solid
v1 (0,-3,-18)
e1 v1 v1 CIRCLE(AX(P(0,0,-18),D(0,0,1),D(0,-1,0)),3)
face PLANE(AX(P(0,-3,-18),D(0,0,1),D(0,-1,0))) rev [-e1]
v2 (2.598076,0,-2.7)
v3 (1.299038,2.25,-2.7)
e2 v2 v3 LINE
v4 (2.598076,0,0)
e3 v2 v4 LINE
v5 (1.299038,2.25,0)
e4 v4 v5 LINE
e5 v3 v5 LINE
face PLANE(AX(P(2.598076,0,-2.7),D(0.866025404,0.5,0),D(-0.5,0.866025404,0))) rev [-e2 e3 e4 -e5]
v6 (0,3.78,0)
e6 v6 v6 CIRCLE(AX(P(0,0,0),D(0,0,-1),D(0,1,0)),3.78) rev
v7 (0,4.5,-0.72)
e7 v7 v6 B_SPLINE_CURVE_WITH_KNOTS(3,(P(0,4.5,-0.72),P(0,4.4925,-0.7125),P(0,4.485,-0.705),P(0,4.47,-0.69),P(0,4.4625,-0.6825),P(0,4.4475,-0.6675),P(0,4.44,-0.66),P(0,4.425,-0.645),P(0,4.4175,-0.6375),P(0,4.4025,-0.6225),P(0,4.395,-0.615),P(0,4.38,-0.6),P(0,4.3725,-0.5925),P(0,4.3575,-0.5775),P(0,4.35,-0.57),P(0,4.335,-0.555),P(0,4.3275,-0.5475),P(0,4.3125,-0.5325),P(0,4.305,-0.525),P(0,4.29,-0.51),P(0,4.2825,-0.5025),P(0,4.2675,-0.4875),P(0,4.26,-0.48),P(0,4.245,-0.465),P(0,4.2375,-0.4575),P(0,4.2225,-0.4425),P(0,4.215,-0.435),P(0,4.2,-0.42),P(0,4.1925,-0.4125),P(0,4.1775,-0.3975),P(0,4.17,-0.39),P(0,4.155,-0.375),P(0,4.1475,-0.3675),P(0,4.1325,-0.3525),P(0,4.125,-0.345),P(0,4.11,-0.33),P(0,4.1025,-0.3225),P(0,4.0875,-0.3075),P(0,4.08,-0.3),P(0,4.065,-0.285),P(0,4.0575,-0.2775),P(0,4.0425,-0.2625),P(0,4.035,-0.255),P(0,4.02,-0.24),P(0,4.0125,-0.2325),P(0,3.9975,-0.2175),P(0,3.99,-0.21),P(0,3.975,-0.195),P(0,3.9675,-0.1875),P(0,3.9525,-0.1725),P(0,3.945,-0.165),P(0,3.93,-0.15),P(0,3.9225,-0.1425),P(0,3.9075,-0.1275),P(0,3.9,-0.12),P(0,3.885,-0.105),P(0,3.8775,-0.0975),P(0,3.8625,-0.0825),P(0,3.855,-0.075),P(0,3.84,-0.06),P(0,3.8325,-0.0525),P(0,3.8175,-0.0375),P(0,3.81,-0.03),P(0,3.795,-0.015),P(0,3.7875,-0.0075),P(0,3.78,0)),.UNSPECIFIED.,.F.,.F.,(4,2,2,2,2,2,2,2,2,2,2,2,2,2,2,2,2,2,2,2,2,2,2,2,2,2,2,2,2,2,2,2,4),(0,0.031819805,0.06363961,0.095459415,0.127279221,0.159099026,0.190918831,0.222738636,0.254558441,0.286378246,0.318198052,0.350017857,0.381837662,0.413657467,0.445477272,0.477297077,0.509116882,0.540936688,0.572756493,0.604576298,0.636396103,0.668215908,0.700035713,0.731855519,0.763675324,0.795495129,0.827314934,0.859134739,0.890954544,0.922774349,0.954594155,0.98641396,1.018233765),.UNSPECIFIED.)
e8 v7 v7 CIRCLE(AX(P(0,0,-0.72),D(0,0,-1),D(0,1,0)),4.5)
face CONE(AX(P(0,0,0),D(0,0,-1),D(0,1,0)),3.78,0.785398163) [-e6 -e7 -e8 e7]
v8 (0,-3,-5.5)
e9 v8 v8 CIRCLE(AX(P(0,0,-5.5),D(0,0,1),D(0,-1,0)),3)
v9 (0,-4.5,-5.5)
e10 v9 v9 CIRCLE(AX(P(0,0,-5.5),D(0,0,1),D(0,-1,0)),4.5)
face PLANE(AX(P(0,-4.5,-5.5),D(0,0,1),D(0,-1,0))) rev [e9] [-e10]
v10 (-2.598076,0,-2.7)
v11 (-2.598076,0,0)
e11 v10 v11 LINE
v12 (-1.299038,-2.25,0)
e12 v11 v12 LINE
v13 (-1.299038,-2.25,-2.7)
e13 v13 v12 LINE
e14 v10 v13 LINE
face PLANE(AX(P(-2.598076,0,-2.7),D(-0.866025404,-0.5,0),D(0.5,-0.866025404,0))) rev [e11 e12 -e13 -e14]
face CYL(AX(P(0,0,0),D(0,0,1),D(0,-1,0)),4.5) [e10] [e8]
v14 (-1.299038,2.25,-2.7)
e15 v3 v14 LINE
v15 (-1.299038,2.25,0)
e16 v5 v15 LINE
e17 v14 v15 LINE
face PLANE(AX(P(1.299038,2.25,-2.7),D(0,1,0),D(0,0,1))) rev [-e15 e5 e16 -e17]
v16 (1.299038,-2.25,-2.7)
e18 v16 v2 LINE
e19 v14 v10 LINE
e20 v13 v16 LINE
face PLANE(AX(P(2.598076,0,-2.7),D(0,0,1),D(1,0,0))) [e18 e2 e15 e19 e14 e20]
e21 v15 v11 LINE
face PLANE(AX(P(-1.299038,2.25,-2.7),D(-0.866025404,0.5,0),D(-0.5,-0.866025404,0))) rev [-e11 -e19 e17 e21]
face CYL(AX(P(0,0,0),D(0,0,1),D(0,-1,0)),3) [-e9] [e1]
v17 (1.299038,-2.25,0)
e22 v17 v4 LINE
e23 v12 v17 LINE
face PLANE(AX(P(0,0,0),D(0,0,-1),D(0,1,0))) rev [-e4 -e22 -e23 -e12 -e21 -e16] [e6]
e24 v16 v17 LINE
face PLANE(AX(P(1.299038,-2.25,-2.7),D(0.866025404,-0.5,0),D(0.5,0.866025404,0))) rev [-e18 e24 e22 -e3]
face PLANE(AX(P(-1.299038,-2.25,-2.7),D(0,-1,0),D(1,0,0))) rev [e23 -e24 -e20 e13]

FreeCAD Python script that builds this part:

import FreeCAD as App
import Part
import Sketcher
Q = App.Units.Quantity


def edges_at(feature, points):
    """Names of the edges that pass closest to the given points."""
    edges = feature.Shape.Edges
    near = lambda p: min(range(len(edges)), key=lambda i: edges[i].distToShape(Part.Vertex(*p))[0])
    return sorted({f"Edge{near(p) + 1}" for p in points})

doc = App.newDocument("Part")
body = doc.addObject("PartDesign::Body", "Body")

# Sketch on YZ plane
sketch1 = body.newObject("Sketcher::SketchObject", "Sketch")
sketch1.AttachmentSupport = (doc.getObject("YZ_Plane"), [""])
sketch1.MapMode = "FlatFace"
sketch1.addGeometry([
    Part.LineSegment(App.Vector(4.5, 0, 0), App.Vector(0, 0, 0)),  # 0
    Part.LineSegment(App.Vector(0, 0, 0), App.Vector(0, -18, 0)),  # 1
    Part.LineSegment(App.Vector(0, -18, 0), App.Vector(3, -18, 0)),  # 2
    Part.LineSegment(App.Vector(3, -18, 0), App.Vector(3, -5.5, 0)),  # 3
    Part.LineSegment(App.Vector(3, -5.5, 0), App.Vector(4.5, -5.5, 0)),  # 4
    Part.LineSegment(App.Vector(4.5, -5.5, 0), App.Vector(4.5, 0, 0)),  # 5
], False)
sketch1.addConstraint([
    Sketcher.Constraint("Coincident", 0, 2, 1, 1),
    Sketcher.Constraint("Coincident", 1, 2, 2, 1),
    Sketcher.Constraint("Coincident", 2, 2, 3, 1),
    Sketcher.Constraint("Coincident", 3, 2, 4, 1),
    Sketcher.Constraint("Coincident", 4, 2, 5, 1),
    Sketcher.Constraint("Coincident", 5, 2, 0, 1),
    Sketcher.Constraint("Horizontal", 0),
    Sketcher.Constraint("Vertical", 1),
    Sketcher.Constraint("Horizontal", 2),
    Sketcher.Constraint("Vertical", 3),
    Sketcher.Constraint("Horizontal", 4),
    Sketcher.Constraint("Vertical", 5),
    Sketcher.Constraint("Coincident", 0, 2, -1, 1),
    Sketcher.Constraint("DistanceX", 2, 1, 2, 2, 3.0),
    Sketcher.Constraint("DistanceY", 1, 2, 1, 1, 18.0),
    Sketcher.Constraint("DistanceX", 0, 2, 0, 1, 4.5),
    Sketcher.Constraint("DistanceY", 3, 1, 3, 2, 12.5),
])
revolution = body.newObject("PartDesign::Revolution", "Revolution")
revolution.Profile = sketch1
revolution.ReferenceAxis = (sketch1, ["V_Axis"])
revolution.Angle = 360
doc.recompute()

chamfer = body.newObject("PartDesign::Chamfer", "Chamfer")
chamfer.Base = (revolution, edges_at(revolution, [(0, 4.5, 0)]))
chamfer.Size = 0.72

# Sketch on XY plane
sketch2 = body.newObject("Sketcher::SketchObject", "Sketch001")
sketch2.AttachmentSupport = (doc.getObject("XY_Plane"), [""])
sketch2.MapMode = "FlatFace"
sketch2.addGeometry([
    Part.LineSegment(App.Vector(2.6, 0, 0), App.Vector(1.3, 2.2, 0)),  # 0
    Part.LineSegment(App.Vector(1.3, 2.2, 0), App.Vector(-1.3, 2.2, 0)),  # 1
    Part.LineSegment(App.Vector(-1.3, 2.2, 0), App.Vector(-2.6, 0, 0)),  # 2
    Part.LineSegment(App.Vector(-2.6, 0, 0), App.Vector(-1.3, -2.2, 0)),  # 3
    Part.LineSegment(App.Vector(-1.3, -2.2, 0), App.Vector(1.3, -2.2, 0)),  # 4
    Part.LineSegment(App.Vector(1.3, -2.2, 0), App.Vector(2.6, 0, 0)),  # 5
], False)
sketch2.addConstraint([
    Sketcher.Constraint("Coincident", 0, 2, 1, 1),
    Sketcher.Constraint("Coincident", 1, 2, 2, 1),
    Sketcher.Constraint("Coincident", 2, 2, 3, 1),
    Sketcher.Constraint("Coincident", 3, 2, 4, 1),
    Sketcher.Constraint("Coincident", 4, 2, 5, 1),
    Sketcher.Constraint("Coincident", 5, 2, 0, 1),
    Sketcher.Constraint("Horizontal", 1),
    Sketcher.Constraint("Horizontal", 4),
    Sketcher.Constraint("Symmetric", 0, 2, 3, 2, -1, 1),
    Sketcher.Constraint("Symmetric", 2, 2, 5, 2, -1, 1),
    Sketcher.Constraint("PointOnObject", 2, 2, -1),
    Sketcher.Constraint("Parallel", 2, 5),
    Sketcher.Constraint("Vertical", 1, 2, 3, 2),
    Sketcher.Constraint("Angle", 0, Q("120 deg")),
    Sketcher.Constraint("DistanceY", 3, 2, 1, 2, 4.5),
    Sketcher.Constraint("DistanceX", 1, 2, 1, 1, 2.598076),
])
pocket1 = body.newObject("PartDesign::Pocket", "Pocket")
pocket1.Profile = sketch2
pocket1.Length = 2.7

doc.recompute()
